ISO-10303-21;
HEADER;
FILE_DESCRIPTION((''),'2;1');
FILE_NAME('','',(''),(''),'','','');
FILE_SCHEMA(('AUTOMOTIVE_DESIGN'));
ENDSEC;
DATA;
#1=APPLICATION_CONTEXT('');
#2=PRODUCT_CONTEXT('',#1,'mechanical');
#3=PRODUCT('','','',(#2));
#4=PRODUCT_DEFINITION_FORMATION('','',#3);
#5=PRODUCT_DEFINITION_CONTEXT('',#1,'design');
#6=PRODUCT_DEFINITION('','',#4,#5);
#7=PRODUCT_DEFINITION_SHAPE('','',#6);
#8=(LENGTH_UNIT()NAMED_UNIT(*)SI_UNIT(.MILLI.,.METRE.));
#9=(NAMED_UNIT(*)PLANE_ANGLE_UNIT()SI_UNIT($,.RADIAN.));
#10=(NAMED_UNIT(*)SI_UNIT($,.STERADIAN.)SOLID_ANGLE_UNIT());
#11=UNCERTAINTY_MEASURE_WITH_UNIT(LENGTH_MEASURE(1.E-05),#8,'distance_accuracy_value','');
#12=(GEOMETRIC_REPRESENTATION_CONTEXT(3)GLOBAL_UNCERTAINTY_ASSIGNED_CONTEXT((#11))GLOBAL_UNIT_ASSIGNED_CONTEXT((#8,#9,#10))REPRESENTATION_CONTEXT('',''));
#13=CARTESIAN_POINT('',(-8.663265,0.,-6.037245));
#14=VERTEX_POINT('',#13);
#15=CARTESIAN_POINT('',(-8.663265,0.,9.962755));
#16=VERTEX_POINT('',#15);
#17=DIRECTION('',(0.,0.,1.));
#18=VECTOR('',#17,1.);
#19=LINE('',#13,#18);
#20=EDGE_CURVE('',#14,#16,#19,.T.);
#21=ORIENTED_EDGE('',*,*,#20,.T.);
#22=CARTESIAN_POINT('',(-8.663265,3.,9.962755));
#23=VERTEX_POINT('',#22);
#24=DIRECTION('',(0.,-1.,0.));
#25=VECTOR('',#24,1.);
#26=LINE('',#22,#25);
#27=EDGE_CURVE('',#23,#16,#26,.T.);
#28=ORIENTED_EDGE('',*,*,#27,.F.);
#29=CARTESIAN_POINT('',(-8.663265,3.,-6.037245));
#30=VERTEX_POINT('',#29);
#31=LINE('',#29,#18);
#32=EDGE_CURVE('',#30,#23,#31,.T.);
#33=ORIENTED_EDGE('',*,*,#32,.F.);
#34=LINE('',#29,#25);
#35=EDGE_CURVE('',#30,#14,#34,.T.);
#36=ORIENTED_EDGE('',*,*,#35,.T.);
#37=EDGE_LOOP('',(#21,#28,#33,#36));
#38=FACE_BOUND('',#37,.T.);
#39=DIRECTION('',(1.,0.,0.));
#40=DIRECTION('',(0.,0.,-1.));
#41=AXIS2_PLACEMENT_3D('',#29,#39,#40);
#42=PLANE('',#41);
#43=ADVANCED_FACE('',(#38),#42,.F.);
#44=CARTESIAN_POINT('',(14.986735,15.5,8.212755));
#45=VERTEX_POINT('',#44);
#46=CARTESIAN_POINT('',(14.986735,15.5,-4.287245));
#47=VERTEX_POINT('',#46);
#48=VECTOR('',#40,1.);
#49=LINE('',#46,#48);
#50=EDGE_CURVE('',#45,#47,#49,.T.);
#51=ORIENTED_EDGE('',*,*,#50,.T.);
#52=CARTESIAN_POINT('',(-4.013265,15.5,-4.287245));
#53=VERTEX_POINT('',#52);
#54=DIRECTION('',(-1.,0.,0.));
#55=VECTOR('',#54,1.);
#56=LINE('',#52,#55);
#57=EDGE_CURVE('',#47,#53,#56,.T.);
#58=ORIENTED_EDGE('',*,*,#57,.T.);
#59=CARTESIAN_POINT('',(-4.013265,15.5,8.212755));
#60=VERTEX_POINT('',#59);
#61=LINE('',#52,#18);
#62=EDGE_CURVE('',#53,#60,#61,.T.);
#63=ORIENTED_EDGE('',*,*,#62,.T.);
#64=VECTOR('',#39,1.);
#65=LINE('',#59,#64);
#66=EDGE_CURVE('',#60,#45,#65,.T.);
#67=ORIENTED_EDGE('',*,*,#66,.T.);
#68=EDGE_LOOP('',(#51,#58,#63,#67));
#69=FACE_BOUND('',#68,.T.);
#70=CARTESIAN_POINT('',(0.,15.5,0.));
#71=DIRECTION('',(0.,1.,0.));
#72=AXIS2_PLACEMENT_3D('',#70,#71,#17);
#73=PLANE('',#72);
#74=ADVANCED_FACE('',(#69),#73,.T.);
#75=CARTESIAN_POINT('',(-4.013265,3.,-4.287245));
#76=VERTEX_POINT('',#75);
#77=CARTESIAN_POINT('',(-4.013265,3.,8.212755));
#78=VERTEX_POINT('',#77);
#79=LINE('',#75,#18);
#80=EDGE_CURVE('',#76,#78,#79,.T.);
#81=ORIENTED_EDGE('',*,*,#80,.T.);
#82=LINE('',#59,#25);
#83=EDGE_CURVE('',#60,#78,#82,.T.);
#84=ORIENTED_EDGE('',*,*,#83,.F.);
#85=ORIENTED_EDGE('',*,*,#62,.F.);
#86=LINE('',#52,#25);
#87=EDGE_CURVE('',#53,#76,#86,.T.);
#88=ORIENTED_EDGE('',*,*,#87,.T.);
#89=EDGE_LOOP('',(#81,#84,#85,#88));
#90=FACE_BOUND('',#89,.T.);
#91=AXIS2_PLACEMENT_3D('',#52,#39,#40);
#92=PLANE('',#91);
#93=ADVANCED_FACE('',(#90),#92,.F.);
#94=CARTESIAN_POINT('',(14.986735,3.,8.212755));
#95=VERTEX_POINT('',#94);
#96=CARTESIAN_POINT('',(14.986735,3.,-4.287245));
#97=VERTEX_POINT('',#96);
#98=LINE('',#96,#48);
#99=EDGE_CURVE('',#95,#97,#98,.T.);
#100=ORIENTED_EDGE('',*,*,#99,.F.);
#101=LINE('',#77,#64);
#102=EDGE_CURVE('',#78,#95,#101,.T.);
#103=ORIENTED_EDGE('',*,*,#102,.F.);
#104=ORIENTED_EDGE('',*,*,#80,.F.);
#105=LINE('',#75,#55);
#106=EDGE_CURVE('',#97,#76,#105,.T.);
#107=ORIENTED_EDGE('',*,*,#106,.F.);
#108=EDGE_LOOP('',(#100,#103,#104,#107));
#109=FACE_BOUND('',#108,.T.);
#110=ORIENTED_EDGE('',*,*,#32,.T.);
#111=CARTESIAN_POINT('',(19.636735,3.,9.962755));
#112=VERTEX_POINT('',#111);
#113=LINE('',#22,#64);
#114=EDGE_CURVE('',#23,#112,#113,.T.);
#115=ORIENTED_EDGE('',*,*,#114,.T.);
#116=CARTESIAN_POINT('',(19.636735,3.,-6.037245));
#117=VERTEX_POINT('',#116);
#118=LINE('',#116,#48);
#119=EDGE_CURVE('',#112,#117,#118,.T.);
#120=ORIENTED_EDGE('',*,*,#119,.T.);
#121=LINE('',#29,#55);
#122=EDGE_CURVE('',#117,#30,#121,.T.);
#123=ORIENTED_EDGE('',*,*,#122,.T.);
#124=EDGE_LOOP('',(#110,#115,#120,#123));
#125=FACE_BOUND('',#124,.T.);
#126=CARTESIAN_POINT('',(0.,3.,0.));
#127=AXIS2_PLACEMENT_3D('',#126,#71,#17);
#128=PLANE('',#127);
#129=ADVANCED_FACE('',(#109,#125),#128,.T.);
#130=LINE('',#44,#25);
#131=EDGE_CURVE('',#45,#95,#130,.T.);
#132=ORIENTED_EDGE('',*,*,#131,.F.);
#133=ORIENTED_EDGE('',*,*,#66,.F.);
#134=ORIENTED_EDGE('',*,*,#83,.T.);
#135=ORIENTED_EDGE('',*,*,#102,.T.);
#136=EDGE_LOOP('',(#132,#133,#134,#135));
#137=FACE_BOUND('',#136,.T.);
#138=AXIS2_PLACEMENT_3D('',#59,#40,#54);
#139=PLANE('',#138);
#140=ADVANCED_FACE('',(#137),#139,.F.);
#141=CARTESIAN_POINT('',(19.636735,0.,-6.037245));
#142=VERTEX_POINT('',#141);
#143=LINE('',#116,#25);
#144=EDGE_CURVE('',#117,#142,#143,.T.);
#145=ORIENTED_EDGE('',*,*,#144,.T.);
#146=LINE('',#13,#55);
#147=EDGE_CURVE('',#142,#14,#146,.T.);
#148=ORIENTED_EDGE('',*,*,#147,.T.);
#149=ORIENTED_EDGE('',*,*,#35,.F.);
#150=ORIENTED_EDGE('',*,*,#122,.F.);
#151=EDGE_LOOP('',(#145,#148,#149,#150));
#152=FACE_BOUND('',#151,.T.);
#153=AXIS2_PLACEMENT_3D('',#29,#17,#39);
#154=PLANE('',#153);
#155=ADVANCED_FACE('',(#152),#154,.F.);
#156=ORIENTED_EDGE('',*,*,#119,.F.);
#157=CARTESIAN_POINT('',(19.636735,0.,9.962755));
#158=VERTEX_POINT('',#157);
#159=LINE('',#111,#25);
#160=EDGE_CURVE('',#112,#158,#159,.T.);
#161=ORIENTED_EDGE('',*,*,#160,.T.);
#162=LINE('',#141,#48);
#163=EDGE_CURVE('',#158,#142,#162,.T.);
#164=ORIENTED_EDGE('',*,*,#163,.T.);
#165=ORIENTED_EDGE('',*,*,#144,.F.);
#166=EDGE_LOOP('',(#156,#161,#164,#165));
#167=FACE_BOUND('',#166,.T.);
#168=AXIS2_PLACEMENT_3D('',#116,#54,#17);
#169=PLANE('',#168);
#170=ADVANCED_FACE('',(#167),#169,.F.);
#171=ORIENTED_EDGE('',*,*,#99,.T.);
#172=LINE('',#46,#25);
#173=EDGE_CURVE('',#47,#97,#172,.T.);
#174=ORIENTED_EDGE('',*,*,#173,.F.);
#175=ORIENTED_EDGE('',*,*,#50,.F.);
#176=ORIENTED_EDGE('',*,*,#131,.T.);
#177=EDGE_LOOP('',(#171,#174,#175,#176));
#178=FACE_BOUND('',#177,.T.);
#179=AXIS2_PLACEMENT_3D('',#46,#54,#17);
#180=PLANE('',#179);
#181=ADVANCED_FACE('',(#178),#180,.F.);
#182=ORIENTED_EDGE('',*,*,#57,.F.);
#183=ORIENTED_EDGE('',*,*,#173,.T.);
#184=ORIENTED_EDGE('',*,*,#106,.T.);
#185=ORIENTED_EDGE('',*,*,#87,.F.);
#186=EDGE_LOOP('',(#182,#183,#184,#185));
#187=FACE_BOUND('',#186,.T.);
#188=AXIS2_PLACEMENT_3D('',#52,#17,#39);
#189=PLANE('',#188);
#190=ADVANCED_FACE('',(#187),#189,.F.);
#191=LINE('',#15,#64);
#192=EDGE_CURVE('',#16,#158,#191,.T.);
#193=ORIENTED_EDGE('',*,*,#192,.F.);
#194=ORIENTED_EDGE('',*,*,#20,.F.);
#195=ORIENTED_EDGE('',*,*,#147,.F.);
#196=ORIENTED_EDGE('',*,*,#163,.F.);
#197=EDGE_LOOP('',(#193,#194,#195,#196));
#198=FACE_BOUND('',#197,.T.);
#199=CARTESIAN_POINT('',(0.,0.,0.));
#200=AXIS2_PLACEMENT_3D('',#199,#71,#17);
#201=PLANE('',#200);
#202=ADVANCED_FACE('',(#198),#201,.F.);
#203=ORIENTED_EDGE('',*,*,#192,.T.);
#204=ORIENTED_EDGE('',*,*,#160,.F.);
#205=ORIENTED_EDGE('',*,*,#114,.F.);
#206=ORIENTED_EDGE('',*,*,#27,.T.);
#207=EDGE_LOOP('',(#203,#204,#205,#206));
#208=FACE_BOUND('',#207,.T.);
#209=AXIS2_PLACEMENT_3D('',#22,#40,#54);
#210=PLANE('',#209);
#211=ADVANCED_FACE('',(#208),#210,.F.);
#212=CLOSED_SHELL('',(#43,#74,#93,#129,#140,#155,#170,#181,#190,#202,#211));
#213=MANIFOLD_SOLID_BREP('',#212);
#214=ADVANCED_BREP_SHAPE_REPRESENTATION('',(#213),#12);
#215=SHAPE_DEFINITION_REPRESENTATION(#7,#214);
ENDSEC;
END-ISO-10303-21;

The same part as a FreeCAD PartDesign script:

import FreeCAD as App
import Part
import Sketcher
Q = App.Units.Quantity


def add_polygon(sketch, points):
    """Adds a closed chain of lines whose ends are joined by coincident constraints."""
    first, n = sketch.GeometryCount, len(points)
    for a, b in zip(points, points[1:] + points[:1]):
        sketch.addGeometry(Part.LineSegment(App.Vector(*a, 0), App.Vector(*b, 0)), False)
    for i in range(n):
        sketch.addConstraint(Sketcher.Constraint("Coincident", first + i, 2, first + (i + 1) % n, 1))

doc = App.newDocument("Part")
body = doc.addObject("PartDesign::Body", "Body")

# Sketch on XZ plane
sketch1 = body.newObject("Sketcher::SketchObject", "Sketch")
sketch1.AttachmentSupport = (doc.getObject("XZ_Plane"), [""])
sketch1.MapMode = "FlatFace"
add_polygon(sketch1, [(-9, -6), (-9, 10), (20, 10), (20, -6)])  # lines 0-3
sketch1.addConstraint(Sketcher.Constraint("Vertical", 0))
sketch1.addConstraint(Sketcher.Constraint("Horizontal", 1))
sketch1.addConstraint(Sketcher.Constraint("Vertical", 2))
sketch1.addConstraint(Sketcher.Constraint("Horizontal", 3))
sketch1.addConstraint(Sketcher.Constraint("DistanceY", 0, 1, 0, 2, Q("16 mm")))
sketch1.addConstraint(Sketcher.Constraint("DistanceX", 1, 1, 1, 2, Q("28.3 mm")))
sketch1.addConstraint(Sketcher.Constraint("DistanceX", 0, 2, -1, 1, Q("8.663265 mm")))
sketch1.addConstraint(Sketcher.Constraint("DistanceY", -1, 1, 0, 2, Q("9.962755 mm")))
pad1 = body.newObject("PartDesign::Pad", "Pad")
pad1.Profile = sketch1
pad1.Length = 3
pad1.Reversed = True

# Sketch on XZ plane
sketch2 = body.newObject("Sketcher::SketchObject", "Sketch001")
sketch2.AttachmentSupport = (doc.getObject("XZ_Plane"), [""])
sketch2.MapMode = "FlatFace"
sketch2.AttachmentOffset = App.Placement(App.Vector(0, 0, -3), App.Rotation())
add_polygon(sketch2, [(-4, -4), (-4, 8), (15, 8), (15, -4)])  # lines 0-3
sketch2.addConstraint(Sketcher.Constraint("Vertical", 0))
sketch2.addConstraint(Sketcher.Constraint("Horizontal", 1))
sketch2.addConstraint(Sketcher.Constraint("Vertical", 2))
sketch2.addConstraint(Sketcher.Constraint("Horizontal", 3))
sketch2.addConstraint(Sketcher.Constraint("DistanceX", 1, 1, 1, 2, Q("19 mm")))
sketch2.addConstraint(Sketcher.Constraint("DistanceY", 0, 1, 0, 2, Q("12.5 mm")))
sketch2.addConstraint(Sketcher.Constraint("DistanceX", 0, 2, -1, 1, Q("4.013265 mm")))
sketch2.addConstraint(Sketcher.Constraint("DistanceY", -1, 1, 0, 2, Q("8.212755 mm")))
pad2 = body.newObject("PartDesign::Pad", "Pad001")
pad2.Profile = sketch2
pad2.Length = 12.5
pad2.Reversed = True

doc.recompute()
